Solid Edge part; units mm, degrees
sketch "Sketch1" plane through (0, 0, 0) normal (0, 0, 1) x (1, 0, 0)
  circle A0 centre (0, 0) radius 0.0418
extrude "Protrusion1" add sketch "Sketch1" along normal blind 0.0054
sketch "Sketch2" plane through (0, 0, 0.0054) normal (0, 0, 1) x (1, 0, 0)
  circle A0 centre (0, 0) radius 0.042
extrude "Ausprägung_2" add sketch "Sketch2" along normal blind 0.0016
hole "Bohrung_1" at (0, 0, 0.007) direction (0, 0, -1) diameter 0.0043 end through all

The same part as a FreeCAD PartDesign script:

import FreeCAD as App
import Part
import Sketcher

V = App.Vector
Q = App.Units.Quantity

doc = App.newDocument("Part")
params = doc.addObject("Spreadsheet::Sheet", "Params")
for row, (alias, value) in enumerate([
    ("pad1_length", "0.0054 mm"),
    ("pad2_length", "0.0016 mm"),
    ("hole_diameter", "0.0043 mm"),
], start=1):
    params.set(f"A{row}", alias)
    params.set(f"B{row}", "=" + value)
    params.setAlias(f"B{row}", alias)

body = doc.addObject("PartDesign::Body", "Body")

# Sketch on XY plane
sketch1 = doc.addObject("Sketcher::SketchObject", "Sketch")
body.addObject(sketch1)
sketch1.AttachmentSupport = (doc.XY_Plane, [""])
sketch1.MapMode = "FlatFace"
sketch1.addGeometry(Part.Circle(V(0, 0, 0), V(0, 0, 1), 0.0418), False)
sketch1.addConstraint([
    Sketcher.Constraint("Coincident", 0, 3, -1, 1),
    Sketcher.Constraint("Diameter", 0, Q("0.0836 mm")),
])
pad1 = doc.addObject("PartDesign::Pad", "Pad")
body.addObject(pad1)
pad1.Profile = sketch1
pad1.setExpression("Length", "Params.pad1_length")

# Sketch on XY plane
sketch2 = doc.addObject("Sketcher::SketchObject", "Sketch001")
body.addObject(sketch2)
sketch2.AttachmentSupport = (doc.XY_Plane, [""])
sketch2.MapMode = "FlatFace"
sketch2.AttachmentOffset = App.Placement(V(0, 0, 0.0054), App.Rotation())
sketch2.addGeometry(Part.Circle(V(0, 0, 0), V(0, 0, 1), 0.042), False)
sketch2.addConstraint([
    Sketcher.Constraint("Coincident", 0, 3, -1, 1),
    Sketcher.Constraint("Diameter", 0, Q("0.084 mm")),
])
pad2 = doc.addObject("PartDesign::Pad", "Pad001")
body.addObject(pad2)
pad2.Profile = sketch2
pad2.setExpression("Length", "Params.pad2_length")

# Sketch on XY plane
sketch3 = doc.addObject("Sketcher::SketchObject", "Sketch002")
body.addObject(sketch3)
sketch3.AttachmentSupport = (doc.XY_Plane, [""])
sketch3.MapMode = "FlatFace"
sketch3.AttachmentOffset = App.Placement(V(0, 0, 0.007), App.Rotation())
sketch3.addGeometry(Part.Circle(V(0, 0, 0), V(0, 0, 1), 0.00215), False)
sketch3.addConstraint([
    Sketcher.Constraint("Coincident", 0, 3, -1, 1),
    Sketcher.Constraint("Diameter", 0, Q("0.0043 mm")),
])
doc.recompute()
hole = doc.addObject("PartDesign::Hole", "Hole")
body.addObject(hole)
hole.Profile = sketch3
hole.ThreadType = "None"
hole.setExpression("Diameter", "Params.hole_diameter")
hole.DepthType = "ThroughAll"

doc.recompute()
